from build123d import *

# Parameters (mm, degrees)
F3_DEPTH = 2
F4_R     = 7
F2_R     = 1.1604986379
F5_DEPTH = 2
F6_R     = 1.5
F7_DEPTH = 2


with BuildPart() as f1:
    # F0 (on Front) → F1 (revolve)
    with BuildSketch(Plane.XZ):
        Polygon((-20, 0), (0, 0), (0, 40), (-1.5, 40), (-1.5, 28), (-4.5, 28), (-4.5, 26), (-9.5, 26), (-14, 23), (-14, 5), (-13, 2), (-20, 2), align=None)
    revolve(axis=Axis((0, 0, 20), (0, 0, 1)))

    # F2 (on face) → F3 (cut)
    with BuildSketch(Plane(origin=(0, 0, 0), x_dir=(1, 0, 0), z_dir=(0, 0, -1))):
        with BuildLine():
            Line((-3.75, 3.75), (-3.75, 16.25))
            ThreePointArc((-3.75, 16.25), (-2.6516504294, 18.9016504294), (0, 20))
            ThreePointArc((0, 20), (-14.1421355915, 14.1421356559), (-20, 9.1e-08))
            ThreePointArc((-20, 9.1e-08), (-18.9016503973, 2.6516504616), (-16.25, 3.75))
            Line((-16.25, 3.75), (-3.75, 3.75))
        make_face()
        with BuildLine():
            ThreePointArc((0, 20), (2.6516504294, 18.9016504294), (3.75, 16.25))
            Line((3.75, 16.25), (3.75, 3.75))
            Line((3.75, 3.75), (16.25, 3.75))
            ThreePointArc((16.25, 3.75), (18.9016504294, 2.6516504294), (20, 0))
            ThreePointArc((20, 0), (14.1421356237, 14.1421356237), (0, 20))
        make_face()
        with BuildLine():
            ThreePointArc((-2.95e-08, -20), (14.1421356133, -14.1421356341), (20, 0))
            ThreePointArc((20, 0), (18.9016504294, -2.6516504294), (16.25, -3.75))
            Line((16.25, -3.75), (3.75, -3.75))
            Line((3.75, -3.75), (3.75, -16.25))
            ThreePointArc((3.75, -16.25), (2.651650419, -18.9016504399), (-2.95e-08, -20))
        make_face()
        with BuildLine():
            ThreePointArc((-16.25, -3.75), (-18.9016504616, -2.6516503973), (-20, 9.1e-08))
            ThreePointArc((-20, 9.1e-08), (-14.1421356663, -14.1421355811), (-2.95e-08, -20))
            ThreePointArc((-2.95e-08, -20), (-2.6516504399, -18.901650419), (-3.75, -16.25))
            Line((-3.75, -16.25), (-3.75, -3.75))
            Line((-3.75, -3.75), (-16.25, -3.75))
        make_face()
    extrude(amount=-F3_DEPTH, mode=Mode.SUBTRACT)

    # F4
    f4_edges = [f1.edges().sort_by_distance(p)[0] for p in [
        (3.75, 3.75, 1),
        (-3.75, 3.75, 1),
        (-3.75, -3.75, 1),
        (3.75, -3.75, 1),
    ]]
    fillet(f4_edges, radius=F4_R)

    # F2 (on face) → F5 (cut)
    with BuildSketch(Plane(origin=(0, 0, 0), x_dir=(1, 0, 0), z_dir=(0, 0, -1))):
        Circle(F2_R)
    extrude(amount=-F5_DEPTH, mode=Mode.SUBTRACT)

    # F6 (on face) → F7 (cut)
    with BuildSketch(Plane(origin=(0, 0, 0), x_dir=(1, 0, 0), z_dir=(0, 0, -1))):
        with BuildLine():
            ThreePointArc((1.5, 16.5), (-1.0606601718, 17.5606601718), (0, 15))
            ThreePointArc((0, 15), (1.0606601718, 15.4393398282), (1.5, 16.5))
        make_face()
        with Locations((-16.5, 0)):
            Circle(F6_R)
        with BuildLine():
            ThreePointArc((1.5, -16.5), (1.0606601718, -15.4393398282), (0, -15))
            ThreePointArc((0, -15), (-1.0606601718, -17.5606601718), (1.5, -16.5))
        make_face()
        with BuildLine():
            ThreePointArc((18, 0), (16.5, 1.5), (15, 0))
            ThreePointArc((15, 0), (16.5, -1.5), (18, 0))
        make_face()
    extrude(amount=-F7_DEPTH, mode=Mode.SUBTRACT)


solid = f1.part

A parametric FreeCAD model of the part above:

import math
import FreeCAD as App
import Part
import Sketcher
Q = App.Units.Quantity


def edges_at(feature, points):
    """Names of the edges that pass closest to the given points."""
    edges = feature.Shape.Edges
    near = lambda p: min(range(len(edges)), key=lambda i: edges[i].distToShape(Part.Vertex(*p))[0])
    return sorted({f"Edge{near(p) + 1}" for p in points})


def add_polygon(sketch, points):
    """Adds a closed chain of lines whose ends are joined by coincident constraints."""
    first, n = sketch.GeometryCount, len(points)
    for a, b in zip(points, points[1:] + points[:1]):
        sketch.addGeometry(Part.LineSegment(App.Vector(*a, 0), App.Vector(*b, 0)), False)
    for i in range(n):
        sketch.addConstraint(Sketcher.Constraint("Coincident", first + i, 2, first + (i + 1) % n, 1))

doc = App.newDocument("Part")
body = doc.addObject("PartDesign::Body", "Body")

sketch1 = body.newObject("Sketcher::SketchObject", "Sketch")
sketch1.AttachmentSupport = (doc.getObject("XZ_Plane"), [""])
sketch1.MapMode = "FlatFace"
add_polygon(sketch1, [(-20, 0), (0, 0), (0, 40), (-1.5, 40), (-1.5, 28), (-4.5, 28), (-4.5, 26), (-9.5, 26), (-14, 23), (-14, 5), (-13, 2), (-20, 2)])
sketch1.addConstraint(Sketcher.Constraint("Horizontal", 0))
sketch1.addConstraint(Sketcher.Constraint("Vertical", 1))
sketch1.addConstraint(Sketcher.Constraint("Horizontal", 2))
sketch1.addConstraint(Sketcher.Constraint("Vertical", 3))
sketch1.addConstraint(Sketcher.Constraint("Horizontal", 4))
sketch1.addConstraint(Sketcher.Constraint("Vertical", 5))
sketch1.addConstraint(Sketcher.Constraint("Horizontal", 6))
sketch1.addConstraint(Sketcher.Constraint("Vertical", 8))
sketch1.addConstraint(Sketcher.Constraint("Horizontal", 10))
sketch1.addConstraint(Sketcher.Constraint("Vertical", 11))
sketch1.addConstraint(Sketcher.Constraint("Coincident", 0, 2, -1, 1))
sketch1.addConstraint(Sketcher.Constraint("Equal", 5, 11))
sketch1.addConstraint(Sketcher.Constraint("DistanceX", 0, 1, 0, 2, Q("20 mm")))
sketch1.addConstraint(Sketcher.Constraint("DistanceX", 4, 2, 4, 1, Q("3 mm")))
sketch1.addConstraint(Sketcher.Constraint("DistanceX", 6, 2, 6, 1, Q("5 mm")))
sketch1.addConstraint(Sketcher.Constraint("DistanceX", 10, 2, 10, 1, Q("7 mm")))
sketch1.addConstraint(Sketcher.Constraint("DistanceY", 1, 1, 1, 2, Q("40 mm")))
sketch1.addConstraint(Sketcher.Constraint("DistanceY", 3, 2, 3, 1, Q("12 mm")))
sketch1.addConstraint(Sketcher.Constraint("DistanceY", 5, 2, 5, 1, Q("2 mm")))
sketch1.addConstraint(Sketcher.Constraint("DistanceY", 8, 2, 8, 1, Q("18 mm")))
sketch1.addConstraint(Sketcher.Constraint("DistanceX", 2, 2, 2, 1, Q("1.5 mm")))
sketch1.addConstraint(Sketcher.Constraint("DistanceX", 7, 2, -1, 1, Q("14 mm")))
sketch1.addConstraint(Sketcher.Constraint("DistanceY", -1, 1, 7, 2, Q("23 mm")))
revolution = body.newObject("PartDesign::Revolution", "Revolution")
revolution.Profile = sketch1
revolution.ReferenceAxis = (sketch1, ["V_Axis"])
revolution.Angle = 360

sketch2 = body.newObject("Sketcher::SketchObject", "Sketch001")
sketch2.AttachmentSupport = (doc.getObject("XY_Plane"), [""])
sketch2.MapMode = "FlatFace"
sketch2.addGeometry(Part.LineSegment(App.Vector(-3.8, -3.8, 0), App.Vector(-3.8, -16.2, 0)), False)
sketch2.addGeometry(Part.ArcOfCircle(Part.Circle(App.Vector(0, -16.2, 0), App.Vector(0, 0, 1), 3.8), math.radians(180), math.radians(270)), False)
sketch2.addGeometry(Part.ArcOfCircle(Part.Circle(App.Vector(0, 0, 0), App.Vector(0, 0, 1), 20), math.radians(-180), math.radians(-90)), False)
sketch2.addGeometry(Part.ArcOfCircle(Part.Circle(App.Vector(-16.2, 0, 0), App.Vector(0, 0, 1), 3.8), math.radians(-180), math.radians(-90)), False)
sketch2.addGeometry(Part.LineSegment(App.Vector(-16.2, -3.8, 0), App.Vector(-3.8, -3.8, 0)), False)
sketch2.addGeometry(Part.ArcOfCircle(Part.Circle(App.Vector(0, -16.2, 0), App.Vector(0, 0, 1), 3.8), math.radians(-90), math.radians(0)), False)
sketch2.addGeometry(Part.LineSegment(App.Vector(3.8, -16.2, 0), App.Vector(3.8, -3.8, 0)), False)
sketch2.addGeometry(Part.LineSegment(App.Vector(3.8, -3.8, 0), App.Vector(16.2, -3.8, 0)), False)
sketch2.addGeometry(Part.ArcOfCircle(Part.Circle(App.Vector(16.2, 0, 0), App.Vector(0, 0, 1), 3.8), math.radians(-90), math.radians(0)), False)
sketch2.addGeometry(Part.ArcOfCircle(Part.Circle(App.Vector(0, 0, 0), App.Vector(0, 0, 1), 20), math.radians(-90), math.radians(0)), False)
sketch2.addGeometry(Part.ArcOfCircle(Part.Circle(App.Vector(0, 0, 0), App.Vector(0, 0, 1), 20), math.radians(0), math.radians(90)), False)
sketch2.addGeometry(Part.ArcOfCircle(Part.Circle(App.Vector(16.2, 0, 0), App.Vector(0, 0, 1), 3.8), math.radians(0), math.radians(90)), False)
sketch2.addGeometry(Part.LineSegment(App.Vector(16.2, 3.8, 0), App.Vector(3.8, 3.8, 0)), False)
sketch2.addGeometry(Part.LineSegment(App.Vector(3.8, 3.8, 0), App.Vector(3.8, 16.2, 0)), False)
sketch2.addGeometry(Part.ArcOfCircle(Part.Circle(App.Vector(0, 16.2, 0), App.Vector(0, 0, 1), 3.8), math.radians(0), math.radians(90)), False)
sketch2.addGeometry(Part.ArcOfCircle(Part.Circle(App.Vector(-16.2, 0, 0), App.Vector(0, 0, 1), 3.8), math.radians(90), math.radians(180)), False)
sketch2.addGeometry(Part.ArcOfCircle(Part.Circle(App.Vector(0, 0, 0), App.Vector(0, 0, 1), 20), math.radians(90), math.radians(180)), False)
sketch2.addGeometry(Part.ArcOfCircle(Part.Circle(App.Vector(0, 16.2, 0), App.Vector(0, 0, 1), 3.8), math.radians(90), math.radians(180)), False)
sketch2.addGeometry(Part.LineSegment(App.Vector(-3.8, 16.2, 0), App.Vector(-3.8, 3.8, 0)), False)
sketch2.addGeometry(Part.LineSegment(App.Vector(-3.8, 3.8, 0), App.Vector(-16.2, 3.8, 0)), False)
sketch2.addConstraint(Sketcher.Constraint("Tangent", 0, 2, 1, 1))
sketch2.addConstraint(Sketcher.Constraint("Tangent", 1, 2, 2, 2))
sketch2.addConstraint(Sketcher.Constraint("Tangent", 2, 1, 3, 1))
sketch2.addConstraint(Sketcher.Constraint("Tangent", 3, 2, 4, 1))
sketch2.addConstraint(Sketcher.Constraint("Coincident", 4, 2, 0, 1))
sketch2.addConstraint(Sketcher.Constraint("Tangent", 5, 2, 6, 1))
sketch2.addConstraint(Sketcher.Constraint("Coincident", 6, 2, 7, 1))
sketch2.addConstraint(Sketcher.Constraint("Tangent", 7, 2, 8, 1))
sketch2.addConstraint(Sketcher.Constraint("Tangent", 8, 2, 9, 2))
sketch2.addConstraint(Sketcher.Constraint("Tangent", 9, 1, 5, 1))
sketch2.addConstraint(Sketcher.Constraint("Tangent", 10, 1, 11, 1))
sketch2.addConstraint(Sketcher.Constraint("Tangent", 11, 2, 12, 1))
sketch2.addConstraint(Sketcher.Constraint("Coincident", 12, 2, 13, 1))
sketch2.addConstraint(Sketcher.Constraint("Tangent", 13, 2, 14, 1))
sketch2.addConstraint(Sketcher.Constraint("Tangent", 14, 2, 10, 2))
sketch2.addConstraint(Sketcher.Constraint("Tangent", 15, 2, 16, 2))
sketch2.addConstraint(Sketcher.Constraint("Tangent", 16, 1, 17, 1))
sketch2.addConstraint(Sketcher.Constraint("Tangent", 17, 2, 18, 1))
sketch2.addConstraint(Sketcher.Constraint("Coincident", 18, 2, 19, 1))
sketch2.addConstraint(Sketcher.Constraint("Tangent", 19, 2, 15, 1))
sketch2.addConstraint(Sketcher.Constraint("Vertical", 0))
sketch2.addConstraint(Sketcher.Constraint("Horizontal", 4))
sketch2.addConstraint(Sketcher.Constraint("Vertical", 6))
sketch2.addConstraint(Sketcher.Constraint("Horizontal", 7))
sketch2.addConstraint(Sketcher.Constraint("Horizontal", 12))
sketch2.addConstraint(Sketcher.Constraint("Vertical", 13))
sketch2.addConstraint(Sketcher.Constraint("Vertical", 18))
sketch2.addConstraint(Sketcher.Constraint("Horizontal", 19))
sketch2.addConstraint(Sketcher.Constraint("Coincident", 2, 3, -1, 1))
sketch2.addConstraint(Sketcher.Constraint("Coincident", 9, 3, -1, 1))
sketch2.addConstraint(Sketcher.Constraint("Coincident", 10, 3, -1, 1))
sketch2.addConstraint(Sketcher.Constraint("Coincident", 16, 3, -1, 1))
sketch2.addConstraint(Sketcher.Constraint("Coincident", 5, 3, 1, 3))
sketch2.addConstraint(Sketcher.Constraint("Coincident", 11, 3, 8, 3))
sketch2.addConstraint(Sketcher.Constraint("Coincident", 15, 3, 3, 3))
sketch2.addConstraint(Sketcher.Constraint("Coincident", 17, 3, 14, 3))
sketch2.addConstraint(Sketcher.Constraint("Equal", 1, 3))
sketch2.addConstraint(Sketcher.Constraint("Equal", 3, 5))
sketch2.addConstraint(Sketcher.Constraint("Equal", 5, 8))
sketch2.addConstraint(Sketcher.Constraint("Equal", 9, 10))
sketch2.addConstraint(Sketcher.Constraint("Equal", 11, 14))
sketch2.addConstraint(Sketcher.Constraint("Equal", 14, 15))
sketch2.addConstraint(Sketcher.Constraint("Symmetric", 4, 2, 12, 2, -1, 1))
sketch2.addConstraint(Sketcher.Constraint("Symmetric", 4, 2, 6, 2, -2))
sketch2.addConstraint(Sketcher.Constraint("Radius", 2, Q("20 mm")))
sketch2.addConstraint(Sketcher.Constraint("Radius", 1, Q("3.75 mm")))
pocket1 = body.newObject("PartDesign::Pocket", "Pocket")
pocket1.Profile = sketch2
pocket1.Length = 2
pocket1.Reversed = True
doc.recompute()

fillet = body.newObject("PartDesign::Fillet", "Fillet")
fillet.Base = (pocket1, edges_at(pocket1, [
    (3.75, 3.75, 1),
    (-3.75, 3.75, 1),
    (-3.75, -3.75, 1),
    (3.75, -3.75, 1),
]))
fillet.Radius = 7

sketch3 = body.newObject("Sketcher::SketchObject", "Sketch002")
sketch3.AttachmentSupport = (doc.getObject("XY_Plane"), [""])
sketch3.MapMode = "FlatFace"
sketch3.addGeometry(Part.Circle(App.Vector(0, 0, 0), App.Vector(0, 0, 1), 1.2), False)
sketch3.addConstraint(Sketcher.Constraint("Coincident", 0, 3, -1, 1))
sketch3.addConstraint(Sketcher.Constraint("Diameter", 0, Q("2.320997 mm")))
pocket2 = body.newObject("PartDesign::Pocket", "Pocket001")
pocket2.Profile = sketch3
pocket2.Length = 2
pocket2.Reversed = True

sketch4 = body.newObject("Sketcher::SketchObject", "Sketch003")
sketch4.AttachmentSupport = (doc.getObject("XY_Plane"), [""])
sketch4.MapMode = "FlatFace"
sketch4.addGeometry(Part.ArcOfCircle(Part.Circle(App.Vector(0, -16.5, 0), App.Vector(0, 0, 1), 1.5), math.radians(90), math.radians(360)), False)
sketch4.addGeometry(Part.ArcOfCircle(Part.Circle(App.Vector(0, -16.5, 0), App.Vector(0, 0, 1), 1.5), math.radians(0), math.radians(90)), False)
sketch4.addGeometry(Part.Circle(App.Vector(-16.5, 0, 0), App.Vector(0, 0, 1), 1.5), False)
sketch4.addGeometry(Part.ArcOfCircle(Part.Circle(App.Vector(0, 16.5, 0), App.Vector(0, 0, 1), 1.5), math.radians(-90), math.radians(0)), False)
sketch4.addGeometry(Part.ArcOfCircle(Part.Circle(App.Vector(0, 16.5, 0), App.Vector(0, 0, 1), 1.5), math.radians(0), math.radians(270)), False)
sketch4.addGeometry(Part.Circle(App.Vector(16.5, 0, 0), App.Vector(0, 0, 1), 1.5), False)
sketch4.addConstraint(Sketcher.Constraint("Tangent", 0, 1, 1, 2))
sketch4.addConstraint(Sketcher.Constraint("Coincident", 1, 1, 0, 2))
sketch4.addConstraint(Sketcher.Constraint("Tangent", 3, 1, 4, 2))
sketch4.addConstraint(Sketcher.Constraint("Coincident", 4, 1, 3, 2))
sketch4.addConstraint(Sketcher.Constraint("Equal", 1, 2))
sketch4.addConstraint(Sketcher.Constraint("Equal", 2, 3))
sketch4.addConstraint(Sketcher.Constraint("Equal", 4, 5))
sketch4.addConstraint(Sketcher.Constraint("Symmetric", 0, 3, 3, 3, -1, 1))
sketch4.addConstraint(Sketcher.Constraint("Symmetric", 2, 3, 5, 3, -1, 1))
sketch4.addConstraint(Sketcher.Constraint("Symmetric", 1, 1, 4, 1, -1))
sketch4.addConstraint(Sketcher.Constraint("PointOnObject", 2, 3, -1))
sketch4.addConstraint(Sketcher.Constraint("PointOnObject", 0, 1, -2))
sketch4.addConstraint(Sketcher.Constraint("PointOnObject", 3, 1, -2))
sketch4.addConstraint(Sketcher.Constraint("Horizontal", 0, 3, 1, 1))
sketch4.addConstraint(Sketcher.Constraint("Diameter", 2, Q("3 mm")))
sketch4.addConstraint(Sketcher.Constraint("DistanceY", 0, 1, -1, 1, Q("15 mm")))
sketch4.addConstraint(Sketcher.Constraint("DistanceX", 2, 3, 5, 3, Q("33 mm")))
pocket3 = body.newObject("PartDesign::Pocket", "Pocket002")
pocket3.Profile = sketch4
pocket3.Length = 2
pocket3.Reversed = True

doc.recompute()
